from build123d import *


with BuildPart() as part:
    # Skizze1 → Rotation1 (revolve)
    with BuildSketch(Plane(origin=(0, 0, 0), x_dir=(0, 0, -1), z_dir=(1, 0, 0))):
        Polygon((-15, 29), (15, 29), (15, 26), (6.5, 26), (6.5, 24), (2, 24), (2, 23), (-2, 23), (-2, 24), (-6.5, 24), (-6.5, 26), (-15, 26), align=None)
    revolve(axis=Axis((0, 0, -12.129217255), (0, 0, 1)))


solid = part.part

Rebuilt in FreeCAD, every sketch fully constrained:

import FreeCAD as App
import Part
import Sketcher
from FreeCAD import Vector


def add_polygon(sketch, points):
    """Adds a closed chain of lines whose ends are joined by coincident constraints."""
    first, n = sketch.GeometryCount, len(points)
    for a, b in zip(points, points[1:] + points[:1]):
        sketch.addGeometry(Part.LineSegment(App.Vector(*a, 0), App.Vector(*b, 0)), False)
    for i in range(n):
        sketch.addConstraint(Sketcher.Constraint("Coincident", first + i, 2, first + (i + 1) % n, 1))

doc = App.newDocument("Part")
body = doc.addObject("PartDesign::Body", "Body")

# Sketch on YZ plane
sketch1 = body.newObject("Sketcher::SketchObject", "Sketch")
sketch1.AttachmentSupport = (doc.getObject("YZ_Plane"), [""])
sketch1.MapMode = "FlatFace"
add_polygon(sketch1, [(29, -15), (29, 15), (26, 15), (26, 6.5), (24, 6.5), (24, 2), (23, 2), (23, -2), (24, -2), (24, -6.5), (26, -6.5), (26, -15)])  # lines 0-11
sketch1.addConstraint([
    Sketcher.Constraint("Vertical", 0),
    Sketcher.Constraint("Horizontal", 1),
    Sketcher.Constraint("Vertical", 2),
    Sketcher.Constraint("Horizontal", 3),
    Sketcher.Constraint("Vertical", 4),
    Sketcher.Constraint("Horizontal", 5),
    Sketcher.Constraint("Vertical", 6),
    Sketcher.Constraint("Horizontal", 7),
    Sketcher.Constraint("Vertical", 8),
    Sketcher.Constraint("Horizontal", 9),
    Sketcher.Constraint("Vertical", 10),
    Sketcher.Constraint("Horizontal", 11),
    Sketcher.Constraint("Symmetric", 4, 2, 7, 2, -1),
    Sketcher.Constraint("Symmetric", 2, 2, 9, 2, -1),
    Sketcher.Constraint("Equal", 2, 10),
    Sketcher.Constraint("DistanceX", 1, 2, 1, 1, 3.0),
    Sketcher.Constraint("DistanceX", 3, 2, 3, 1, 2.0),
    Sketcher.Constraint("DistanceX", 5, 2, 5, 1, 1.0),
    Sketcher.Constraint("DistanceY", 0, 1, 0, 2, 30.0),
    Sketcher.Constraint("DistanceY", 6, 2, 6, 1, 4.0),
    Sketcher.Constraint("DistanceY", 2, 2, 2, 1, 8.5),
    Sketcher.Constraint("DistanceX", -1, 1, 0, 2, 29.0),
])
revolution = body.newObject("PartDesign::Revolution", "Revolution")
revolution.Profile = sketch1
revolution.ReferenceAxis = (sketch1, ["V_Axis"])
revolution.Angle = 360

doc.recompute()
